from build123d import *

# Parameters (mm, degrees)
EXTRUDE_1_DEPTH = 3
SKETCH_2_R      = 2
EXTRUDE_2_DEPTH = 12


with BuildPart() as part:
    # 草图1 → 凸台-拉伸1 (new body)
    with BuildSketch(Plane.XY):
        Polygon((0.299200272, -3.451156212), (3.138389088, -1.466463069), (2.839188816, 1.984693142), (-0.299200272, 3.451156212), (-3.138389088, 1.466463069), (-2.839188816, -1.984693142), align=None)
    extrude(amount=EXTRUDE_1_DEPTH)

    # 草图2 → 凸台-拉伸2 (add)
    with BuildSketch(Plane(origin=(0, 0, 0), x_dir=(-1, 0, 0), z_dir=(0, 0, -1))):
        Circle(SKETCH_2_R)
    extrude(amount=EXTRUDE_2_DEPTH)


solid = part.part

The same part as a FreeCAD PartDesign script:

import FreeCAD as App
import Part
import Sketcher

doc = App.newDocument("Part")
body = doc.addObject("PartDesign::Body", "Body")

sketch1 = body.newObject("Sketcher::SketchObject", "Sketch")
sketch1.AttachmentSupport = (doc.getObject("XY_Plane"), [""])
sketch1.MapMode = "FlatFace"
sketch1.addGeometry([
    Part.LineSegment(App.Vector(0.2992, -3.451156, 0), App.Vector(3.138389, -1.466463, 0)),
    Part.LineSegment(App.Vector(3.138389, -1.466463, 0), App.Vector(2.839189, 1.984693, 0)),
    Part.LineSegment(App.Vector(2.839189, 1.984693, 0), App.Vector(-0.2992, 3.451156, 0)),
    Part.LineSegment(App.Vector(-0.2992, 3.451156, 0), App.Vector(-3.138389, 1.466463, 0)),
    Part.LineSegment(App.Vector(-3.138389, 1.466463, 0), App.Vector(-2.839189, -1.984693, 0)),
    Part.LineSegment(App.Vector(-2.839189, -1.984693, 0), App.Vector(0.2992, -3.451156, 0)),
], False)
sketch1.addConstraint([
    Sketcher.Constraint("Coincident", 0, 2, 1, 1),
    Sketcher.Constraint("Coincident", 1, 2, 2, 1),
    Sketcher.Constraint("Coincident", 2, 2, 3, 1),
    Sketcher.Constraint("Coincident", 3, 2, 4, 1),
    Sketcher.Constraint("Coincident", 4, 2, 5, 1),
    Sketcher.Constraint("Coincident", 5, 2, 0, 1),
    Sketcher.Constraint("Symmetric", 0, 2, 3, 2, -1, 1),
    Sketcher.Constraint("Symmetric", 1, 2, 4, 2, -1, 1),
    Sketcher.Constraint("Symmetric", 2, 2, 5, 2, -1, 1),
    Sketcher.Constraint("Equal", 0, 1),
    Sketcher.Constraint("Equal", 1, 2),
    Sketcher.Constraint("Distance", 0, 3.464102),
    Sketcher.Constraint("DistanceX", 2, 2, -1, 1, 0.2992),
    Sketcher.Constraint("DistanceX", 1, 2, 0, 2, 0.2992),
    Sketcher.Constraint("DistanceX", -1, 1, 0, 2, 3.138389),
])
pad1 = body.newObject("PartDesign::Pad", "Pad")
pad1.Profile = sketch1
pad1.Length = 3

sketch2 = body.newObject("Sketcher::SketchObject", "Sketch001")
sketch2.AttachmentSupport = (doc.getObject("XY_Plane"), [""])
sketch2.MapMode = "FlatFace"
sketch2.addGeometry(Part.Circle(App.Vector(0, 0, 0), App.Vector(0, 0, 1), 2), False)
sketch2.addConstraint([
    Sketcher.Constraint("Coincident", 0, 3, -1, 1),
    Sketcher.Constraint("Diameter", 0, 4.0),
])
pad2 = body.newObject("PartDesign::Pad", "Pad001")
pad2.Profile = sketch2
pad2.Length = 12
pad2.Reversed = True

doc.recompute()
